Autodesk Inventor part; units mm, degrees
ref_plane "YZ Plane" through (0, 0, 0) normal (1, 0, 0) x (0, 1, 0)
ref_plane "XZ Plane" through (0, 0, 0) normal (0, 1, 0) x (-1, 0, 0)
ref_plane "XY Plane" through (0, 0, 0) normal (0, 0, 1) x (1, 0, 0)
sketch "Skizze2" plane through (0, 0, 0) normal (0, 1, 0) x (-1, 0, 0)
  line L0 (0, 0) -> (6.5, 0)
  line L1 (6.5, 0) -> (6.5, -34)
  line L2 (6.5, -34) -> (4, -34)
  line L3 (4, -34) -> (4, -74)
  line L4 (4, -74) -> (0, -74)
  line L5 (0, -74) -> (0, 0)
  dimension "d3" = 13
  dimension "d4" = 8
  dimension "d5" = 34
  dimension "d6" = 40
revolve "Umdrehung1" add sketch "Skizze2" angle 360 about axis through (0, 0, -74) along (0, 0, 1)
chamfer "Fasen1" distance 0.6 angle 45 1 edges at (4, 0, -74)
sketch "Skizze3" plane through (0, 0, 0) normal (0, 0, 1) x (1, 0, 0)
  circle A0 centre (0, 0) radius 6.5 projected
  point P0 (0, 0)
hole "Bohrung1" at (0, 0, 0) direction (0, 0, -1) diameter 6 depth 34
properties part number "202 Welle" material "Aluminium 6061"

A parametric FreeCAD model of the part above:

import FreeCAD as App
import Part
import Sketcher
Q = App.Units.Quantity


def edges_at(feature, points):
    """Names of the edges that pass closest to the given points."""
    edges = feature.Shape.Edges
    near = lambda p: min(range(len(edges)), key=lambda i: edges[i].distToShape(Part.Vertex(*p))[0])
    return sorted({f"Edge{near(p) + 1}" for p in points})


def add_polygon(sketch, points):
    """Adds a closed chain of lines whose ends are joined by coincident constraints."""
    first, n = sketch.GeometryCount, len(points)
    for a, b in zip(points, points[1:] + points[:1]):
        sketch.addGeometry(Part.LineSegment(App.Vector(*a, 0), App.Vector(*b, 0)), False)
    for i in range(n):
        sketch.addConstraint(Sketcher.Constraint("Coincident", first + i, 2, first + (i + 1) % n, 1))

doc = App.newDocument("Part")
body = doc.addObject("PartDesign::Body", "Body")

sketch1 = doc.addObject("Sketcher::SketchObject", "Sketch")
body.addObject(sketch1)
sketch1.AttachmentSupport = (doc.XZ_Plane, [""])
sketch1.MapMode = "FlatFace"
add_polygon(sketch1, [(-6.5, 0), (0, 0), (0, -74), (-4, -74), (-4, -34), (-6.5, -34)])
sketch1.addConstraint([
    Sketcher.Constraint("Horizontal", 0),
    Sketcher.Constraint("Vertical", 1),
    Sketcher.Constraint("Horizontal", 2),
    Sketcher.Constraint("Vertical", 3),
    Sketcher.Constraint("Horizontal", 4),
    Sketcher.Constraint("Vertical", 5),
    Sketcher.Constraint("Coincident", 0, 2, -1, 1),
    Sketcher.Constraint("DistanceY", 3, 1, 3, 2, Q("40 mm")),
    Sketcher.Constraint("DistanceY", 5, 1, 5, 2, Q("34 mm")),
    Sketcher.Constraint("DistanceX", 2, 2, 2, 1, Q("4 mm")),
    Sketcher.Constraint("DistanceX", 0, 1, 0, 2, Q("6.5 mm")),
])
revolution = doc.addObject("PartDesign::Revolution", "Revolution")
body.addObject(revolution)
revolution.Profile = sketch1
revolution.ReferenceAxis = (sketch1, ["V_Axis"])
revolution.Angle = 360
doc.recompute()

chamfer = doc.addObject("PartDesign::Chamfer", "Chamfer")
body.addObject(chamfer)
chamfer.Base = (revolution, edges_at(revolution, [(4, 0, -74)]))
chamfer.Size = 0.6

sketch2 = doc.addObject("Sketcher::SketchObject", "Sketch001")
body.addObject(sketch2)
sketch2.AttachmentSupport = (doc.XY_Plane, [""])
sketch2.MapMode = "FlatFace"
sketch2.addGeometry(Part.Circle(App.Vector(0, 0, 0), App.Vector(0, 0, 1), 3), False)
sketch2.addConstraint([
    Sketcher.Constraint("Coincident", 0, 3, -1, 1),
    Sketcher.Constraint("Diameter", 0, Q("6 mm")),
])
doc.recompute()
hole = doc.addObject("PartDesign::Hole", "Hole")
body.addObject(hole)
hole.Profile = sketch2
hole.ThreadType = "None"
hole.Diameter = 6
hole.DepthType = "Dimension"
hole.Depth = 34
hole.DrillPoint = "Flat"

doc.recompute()
